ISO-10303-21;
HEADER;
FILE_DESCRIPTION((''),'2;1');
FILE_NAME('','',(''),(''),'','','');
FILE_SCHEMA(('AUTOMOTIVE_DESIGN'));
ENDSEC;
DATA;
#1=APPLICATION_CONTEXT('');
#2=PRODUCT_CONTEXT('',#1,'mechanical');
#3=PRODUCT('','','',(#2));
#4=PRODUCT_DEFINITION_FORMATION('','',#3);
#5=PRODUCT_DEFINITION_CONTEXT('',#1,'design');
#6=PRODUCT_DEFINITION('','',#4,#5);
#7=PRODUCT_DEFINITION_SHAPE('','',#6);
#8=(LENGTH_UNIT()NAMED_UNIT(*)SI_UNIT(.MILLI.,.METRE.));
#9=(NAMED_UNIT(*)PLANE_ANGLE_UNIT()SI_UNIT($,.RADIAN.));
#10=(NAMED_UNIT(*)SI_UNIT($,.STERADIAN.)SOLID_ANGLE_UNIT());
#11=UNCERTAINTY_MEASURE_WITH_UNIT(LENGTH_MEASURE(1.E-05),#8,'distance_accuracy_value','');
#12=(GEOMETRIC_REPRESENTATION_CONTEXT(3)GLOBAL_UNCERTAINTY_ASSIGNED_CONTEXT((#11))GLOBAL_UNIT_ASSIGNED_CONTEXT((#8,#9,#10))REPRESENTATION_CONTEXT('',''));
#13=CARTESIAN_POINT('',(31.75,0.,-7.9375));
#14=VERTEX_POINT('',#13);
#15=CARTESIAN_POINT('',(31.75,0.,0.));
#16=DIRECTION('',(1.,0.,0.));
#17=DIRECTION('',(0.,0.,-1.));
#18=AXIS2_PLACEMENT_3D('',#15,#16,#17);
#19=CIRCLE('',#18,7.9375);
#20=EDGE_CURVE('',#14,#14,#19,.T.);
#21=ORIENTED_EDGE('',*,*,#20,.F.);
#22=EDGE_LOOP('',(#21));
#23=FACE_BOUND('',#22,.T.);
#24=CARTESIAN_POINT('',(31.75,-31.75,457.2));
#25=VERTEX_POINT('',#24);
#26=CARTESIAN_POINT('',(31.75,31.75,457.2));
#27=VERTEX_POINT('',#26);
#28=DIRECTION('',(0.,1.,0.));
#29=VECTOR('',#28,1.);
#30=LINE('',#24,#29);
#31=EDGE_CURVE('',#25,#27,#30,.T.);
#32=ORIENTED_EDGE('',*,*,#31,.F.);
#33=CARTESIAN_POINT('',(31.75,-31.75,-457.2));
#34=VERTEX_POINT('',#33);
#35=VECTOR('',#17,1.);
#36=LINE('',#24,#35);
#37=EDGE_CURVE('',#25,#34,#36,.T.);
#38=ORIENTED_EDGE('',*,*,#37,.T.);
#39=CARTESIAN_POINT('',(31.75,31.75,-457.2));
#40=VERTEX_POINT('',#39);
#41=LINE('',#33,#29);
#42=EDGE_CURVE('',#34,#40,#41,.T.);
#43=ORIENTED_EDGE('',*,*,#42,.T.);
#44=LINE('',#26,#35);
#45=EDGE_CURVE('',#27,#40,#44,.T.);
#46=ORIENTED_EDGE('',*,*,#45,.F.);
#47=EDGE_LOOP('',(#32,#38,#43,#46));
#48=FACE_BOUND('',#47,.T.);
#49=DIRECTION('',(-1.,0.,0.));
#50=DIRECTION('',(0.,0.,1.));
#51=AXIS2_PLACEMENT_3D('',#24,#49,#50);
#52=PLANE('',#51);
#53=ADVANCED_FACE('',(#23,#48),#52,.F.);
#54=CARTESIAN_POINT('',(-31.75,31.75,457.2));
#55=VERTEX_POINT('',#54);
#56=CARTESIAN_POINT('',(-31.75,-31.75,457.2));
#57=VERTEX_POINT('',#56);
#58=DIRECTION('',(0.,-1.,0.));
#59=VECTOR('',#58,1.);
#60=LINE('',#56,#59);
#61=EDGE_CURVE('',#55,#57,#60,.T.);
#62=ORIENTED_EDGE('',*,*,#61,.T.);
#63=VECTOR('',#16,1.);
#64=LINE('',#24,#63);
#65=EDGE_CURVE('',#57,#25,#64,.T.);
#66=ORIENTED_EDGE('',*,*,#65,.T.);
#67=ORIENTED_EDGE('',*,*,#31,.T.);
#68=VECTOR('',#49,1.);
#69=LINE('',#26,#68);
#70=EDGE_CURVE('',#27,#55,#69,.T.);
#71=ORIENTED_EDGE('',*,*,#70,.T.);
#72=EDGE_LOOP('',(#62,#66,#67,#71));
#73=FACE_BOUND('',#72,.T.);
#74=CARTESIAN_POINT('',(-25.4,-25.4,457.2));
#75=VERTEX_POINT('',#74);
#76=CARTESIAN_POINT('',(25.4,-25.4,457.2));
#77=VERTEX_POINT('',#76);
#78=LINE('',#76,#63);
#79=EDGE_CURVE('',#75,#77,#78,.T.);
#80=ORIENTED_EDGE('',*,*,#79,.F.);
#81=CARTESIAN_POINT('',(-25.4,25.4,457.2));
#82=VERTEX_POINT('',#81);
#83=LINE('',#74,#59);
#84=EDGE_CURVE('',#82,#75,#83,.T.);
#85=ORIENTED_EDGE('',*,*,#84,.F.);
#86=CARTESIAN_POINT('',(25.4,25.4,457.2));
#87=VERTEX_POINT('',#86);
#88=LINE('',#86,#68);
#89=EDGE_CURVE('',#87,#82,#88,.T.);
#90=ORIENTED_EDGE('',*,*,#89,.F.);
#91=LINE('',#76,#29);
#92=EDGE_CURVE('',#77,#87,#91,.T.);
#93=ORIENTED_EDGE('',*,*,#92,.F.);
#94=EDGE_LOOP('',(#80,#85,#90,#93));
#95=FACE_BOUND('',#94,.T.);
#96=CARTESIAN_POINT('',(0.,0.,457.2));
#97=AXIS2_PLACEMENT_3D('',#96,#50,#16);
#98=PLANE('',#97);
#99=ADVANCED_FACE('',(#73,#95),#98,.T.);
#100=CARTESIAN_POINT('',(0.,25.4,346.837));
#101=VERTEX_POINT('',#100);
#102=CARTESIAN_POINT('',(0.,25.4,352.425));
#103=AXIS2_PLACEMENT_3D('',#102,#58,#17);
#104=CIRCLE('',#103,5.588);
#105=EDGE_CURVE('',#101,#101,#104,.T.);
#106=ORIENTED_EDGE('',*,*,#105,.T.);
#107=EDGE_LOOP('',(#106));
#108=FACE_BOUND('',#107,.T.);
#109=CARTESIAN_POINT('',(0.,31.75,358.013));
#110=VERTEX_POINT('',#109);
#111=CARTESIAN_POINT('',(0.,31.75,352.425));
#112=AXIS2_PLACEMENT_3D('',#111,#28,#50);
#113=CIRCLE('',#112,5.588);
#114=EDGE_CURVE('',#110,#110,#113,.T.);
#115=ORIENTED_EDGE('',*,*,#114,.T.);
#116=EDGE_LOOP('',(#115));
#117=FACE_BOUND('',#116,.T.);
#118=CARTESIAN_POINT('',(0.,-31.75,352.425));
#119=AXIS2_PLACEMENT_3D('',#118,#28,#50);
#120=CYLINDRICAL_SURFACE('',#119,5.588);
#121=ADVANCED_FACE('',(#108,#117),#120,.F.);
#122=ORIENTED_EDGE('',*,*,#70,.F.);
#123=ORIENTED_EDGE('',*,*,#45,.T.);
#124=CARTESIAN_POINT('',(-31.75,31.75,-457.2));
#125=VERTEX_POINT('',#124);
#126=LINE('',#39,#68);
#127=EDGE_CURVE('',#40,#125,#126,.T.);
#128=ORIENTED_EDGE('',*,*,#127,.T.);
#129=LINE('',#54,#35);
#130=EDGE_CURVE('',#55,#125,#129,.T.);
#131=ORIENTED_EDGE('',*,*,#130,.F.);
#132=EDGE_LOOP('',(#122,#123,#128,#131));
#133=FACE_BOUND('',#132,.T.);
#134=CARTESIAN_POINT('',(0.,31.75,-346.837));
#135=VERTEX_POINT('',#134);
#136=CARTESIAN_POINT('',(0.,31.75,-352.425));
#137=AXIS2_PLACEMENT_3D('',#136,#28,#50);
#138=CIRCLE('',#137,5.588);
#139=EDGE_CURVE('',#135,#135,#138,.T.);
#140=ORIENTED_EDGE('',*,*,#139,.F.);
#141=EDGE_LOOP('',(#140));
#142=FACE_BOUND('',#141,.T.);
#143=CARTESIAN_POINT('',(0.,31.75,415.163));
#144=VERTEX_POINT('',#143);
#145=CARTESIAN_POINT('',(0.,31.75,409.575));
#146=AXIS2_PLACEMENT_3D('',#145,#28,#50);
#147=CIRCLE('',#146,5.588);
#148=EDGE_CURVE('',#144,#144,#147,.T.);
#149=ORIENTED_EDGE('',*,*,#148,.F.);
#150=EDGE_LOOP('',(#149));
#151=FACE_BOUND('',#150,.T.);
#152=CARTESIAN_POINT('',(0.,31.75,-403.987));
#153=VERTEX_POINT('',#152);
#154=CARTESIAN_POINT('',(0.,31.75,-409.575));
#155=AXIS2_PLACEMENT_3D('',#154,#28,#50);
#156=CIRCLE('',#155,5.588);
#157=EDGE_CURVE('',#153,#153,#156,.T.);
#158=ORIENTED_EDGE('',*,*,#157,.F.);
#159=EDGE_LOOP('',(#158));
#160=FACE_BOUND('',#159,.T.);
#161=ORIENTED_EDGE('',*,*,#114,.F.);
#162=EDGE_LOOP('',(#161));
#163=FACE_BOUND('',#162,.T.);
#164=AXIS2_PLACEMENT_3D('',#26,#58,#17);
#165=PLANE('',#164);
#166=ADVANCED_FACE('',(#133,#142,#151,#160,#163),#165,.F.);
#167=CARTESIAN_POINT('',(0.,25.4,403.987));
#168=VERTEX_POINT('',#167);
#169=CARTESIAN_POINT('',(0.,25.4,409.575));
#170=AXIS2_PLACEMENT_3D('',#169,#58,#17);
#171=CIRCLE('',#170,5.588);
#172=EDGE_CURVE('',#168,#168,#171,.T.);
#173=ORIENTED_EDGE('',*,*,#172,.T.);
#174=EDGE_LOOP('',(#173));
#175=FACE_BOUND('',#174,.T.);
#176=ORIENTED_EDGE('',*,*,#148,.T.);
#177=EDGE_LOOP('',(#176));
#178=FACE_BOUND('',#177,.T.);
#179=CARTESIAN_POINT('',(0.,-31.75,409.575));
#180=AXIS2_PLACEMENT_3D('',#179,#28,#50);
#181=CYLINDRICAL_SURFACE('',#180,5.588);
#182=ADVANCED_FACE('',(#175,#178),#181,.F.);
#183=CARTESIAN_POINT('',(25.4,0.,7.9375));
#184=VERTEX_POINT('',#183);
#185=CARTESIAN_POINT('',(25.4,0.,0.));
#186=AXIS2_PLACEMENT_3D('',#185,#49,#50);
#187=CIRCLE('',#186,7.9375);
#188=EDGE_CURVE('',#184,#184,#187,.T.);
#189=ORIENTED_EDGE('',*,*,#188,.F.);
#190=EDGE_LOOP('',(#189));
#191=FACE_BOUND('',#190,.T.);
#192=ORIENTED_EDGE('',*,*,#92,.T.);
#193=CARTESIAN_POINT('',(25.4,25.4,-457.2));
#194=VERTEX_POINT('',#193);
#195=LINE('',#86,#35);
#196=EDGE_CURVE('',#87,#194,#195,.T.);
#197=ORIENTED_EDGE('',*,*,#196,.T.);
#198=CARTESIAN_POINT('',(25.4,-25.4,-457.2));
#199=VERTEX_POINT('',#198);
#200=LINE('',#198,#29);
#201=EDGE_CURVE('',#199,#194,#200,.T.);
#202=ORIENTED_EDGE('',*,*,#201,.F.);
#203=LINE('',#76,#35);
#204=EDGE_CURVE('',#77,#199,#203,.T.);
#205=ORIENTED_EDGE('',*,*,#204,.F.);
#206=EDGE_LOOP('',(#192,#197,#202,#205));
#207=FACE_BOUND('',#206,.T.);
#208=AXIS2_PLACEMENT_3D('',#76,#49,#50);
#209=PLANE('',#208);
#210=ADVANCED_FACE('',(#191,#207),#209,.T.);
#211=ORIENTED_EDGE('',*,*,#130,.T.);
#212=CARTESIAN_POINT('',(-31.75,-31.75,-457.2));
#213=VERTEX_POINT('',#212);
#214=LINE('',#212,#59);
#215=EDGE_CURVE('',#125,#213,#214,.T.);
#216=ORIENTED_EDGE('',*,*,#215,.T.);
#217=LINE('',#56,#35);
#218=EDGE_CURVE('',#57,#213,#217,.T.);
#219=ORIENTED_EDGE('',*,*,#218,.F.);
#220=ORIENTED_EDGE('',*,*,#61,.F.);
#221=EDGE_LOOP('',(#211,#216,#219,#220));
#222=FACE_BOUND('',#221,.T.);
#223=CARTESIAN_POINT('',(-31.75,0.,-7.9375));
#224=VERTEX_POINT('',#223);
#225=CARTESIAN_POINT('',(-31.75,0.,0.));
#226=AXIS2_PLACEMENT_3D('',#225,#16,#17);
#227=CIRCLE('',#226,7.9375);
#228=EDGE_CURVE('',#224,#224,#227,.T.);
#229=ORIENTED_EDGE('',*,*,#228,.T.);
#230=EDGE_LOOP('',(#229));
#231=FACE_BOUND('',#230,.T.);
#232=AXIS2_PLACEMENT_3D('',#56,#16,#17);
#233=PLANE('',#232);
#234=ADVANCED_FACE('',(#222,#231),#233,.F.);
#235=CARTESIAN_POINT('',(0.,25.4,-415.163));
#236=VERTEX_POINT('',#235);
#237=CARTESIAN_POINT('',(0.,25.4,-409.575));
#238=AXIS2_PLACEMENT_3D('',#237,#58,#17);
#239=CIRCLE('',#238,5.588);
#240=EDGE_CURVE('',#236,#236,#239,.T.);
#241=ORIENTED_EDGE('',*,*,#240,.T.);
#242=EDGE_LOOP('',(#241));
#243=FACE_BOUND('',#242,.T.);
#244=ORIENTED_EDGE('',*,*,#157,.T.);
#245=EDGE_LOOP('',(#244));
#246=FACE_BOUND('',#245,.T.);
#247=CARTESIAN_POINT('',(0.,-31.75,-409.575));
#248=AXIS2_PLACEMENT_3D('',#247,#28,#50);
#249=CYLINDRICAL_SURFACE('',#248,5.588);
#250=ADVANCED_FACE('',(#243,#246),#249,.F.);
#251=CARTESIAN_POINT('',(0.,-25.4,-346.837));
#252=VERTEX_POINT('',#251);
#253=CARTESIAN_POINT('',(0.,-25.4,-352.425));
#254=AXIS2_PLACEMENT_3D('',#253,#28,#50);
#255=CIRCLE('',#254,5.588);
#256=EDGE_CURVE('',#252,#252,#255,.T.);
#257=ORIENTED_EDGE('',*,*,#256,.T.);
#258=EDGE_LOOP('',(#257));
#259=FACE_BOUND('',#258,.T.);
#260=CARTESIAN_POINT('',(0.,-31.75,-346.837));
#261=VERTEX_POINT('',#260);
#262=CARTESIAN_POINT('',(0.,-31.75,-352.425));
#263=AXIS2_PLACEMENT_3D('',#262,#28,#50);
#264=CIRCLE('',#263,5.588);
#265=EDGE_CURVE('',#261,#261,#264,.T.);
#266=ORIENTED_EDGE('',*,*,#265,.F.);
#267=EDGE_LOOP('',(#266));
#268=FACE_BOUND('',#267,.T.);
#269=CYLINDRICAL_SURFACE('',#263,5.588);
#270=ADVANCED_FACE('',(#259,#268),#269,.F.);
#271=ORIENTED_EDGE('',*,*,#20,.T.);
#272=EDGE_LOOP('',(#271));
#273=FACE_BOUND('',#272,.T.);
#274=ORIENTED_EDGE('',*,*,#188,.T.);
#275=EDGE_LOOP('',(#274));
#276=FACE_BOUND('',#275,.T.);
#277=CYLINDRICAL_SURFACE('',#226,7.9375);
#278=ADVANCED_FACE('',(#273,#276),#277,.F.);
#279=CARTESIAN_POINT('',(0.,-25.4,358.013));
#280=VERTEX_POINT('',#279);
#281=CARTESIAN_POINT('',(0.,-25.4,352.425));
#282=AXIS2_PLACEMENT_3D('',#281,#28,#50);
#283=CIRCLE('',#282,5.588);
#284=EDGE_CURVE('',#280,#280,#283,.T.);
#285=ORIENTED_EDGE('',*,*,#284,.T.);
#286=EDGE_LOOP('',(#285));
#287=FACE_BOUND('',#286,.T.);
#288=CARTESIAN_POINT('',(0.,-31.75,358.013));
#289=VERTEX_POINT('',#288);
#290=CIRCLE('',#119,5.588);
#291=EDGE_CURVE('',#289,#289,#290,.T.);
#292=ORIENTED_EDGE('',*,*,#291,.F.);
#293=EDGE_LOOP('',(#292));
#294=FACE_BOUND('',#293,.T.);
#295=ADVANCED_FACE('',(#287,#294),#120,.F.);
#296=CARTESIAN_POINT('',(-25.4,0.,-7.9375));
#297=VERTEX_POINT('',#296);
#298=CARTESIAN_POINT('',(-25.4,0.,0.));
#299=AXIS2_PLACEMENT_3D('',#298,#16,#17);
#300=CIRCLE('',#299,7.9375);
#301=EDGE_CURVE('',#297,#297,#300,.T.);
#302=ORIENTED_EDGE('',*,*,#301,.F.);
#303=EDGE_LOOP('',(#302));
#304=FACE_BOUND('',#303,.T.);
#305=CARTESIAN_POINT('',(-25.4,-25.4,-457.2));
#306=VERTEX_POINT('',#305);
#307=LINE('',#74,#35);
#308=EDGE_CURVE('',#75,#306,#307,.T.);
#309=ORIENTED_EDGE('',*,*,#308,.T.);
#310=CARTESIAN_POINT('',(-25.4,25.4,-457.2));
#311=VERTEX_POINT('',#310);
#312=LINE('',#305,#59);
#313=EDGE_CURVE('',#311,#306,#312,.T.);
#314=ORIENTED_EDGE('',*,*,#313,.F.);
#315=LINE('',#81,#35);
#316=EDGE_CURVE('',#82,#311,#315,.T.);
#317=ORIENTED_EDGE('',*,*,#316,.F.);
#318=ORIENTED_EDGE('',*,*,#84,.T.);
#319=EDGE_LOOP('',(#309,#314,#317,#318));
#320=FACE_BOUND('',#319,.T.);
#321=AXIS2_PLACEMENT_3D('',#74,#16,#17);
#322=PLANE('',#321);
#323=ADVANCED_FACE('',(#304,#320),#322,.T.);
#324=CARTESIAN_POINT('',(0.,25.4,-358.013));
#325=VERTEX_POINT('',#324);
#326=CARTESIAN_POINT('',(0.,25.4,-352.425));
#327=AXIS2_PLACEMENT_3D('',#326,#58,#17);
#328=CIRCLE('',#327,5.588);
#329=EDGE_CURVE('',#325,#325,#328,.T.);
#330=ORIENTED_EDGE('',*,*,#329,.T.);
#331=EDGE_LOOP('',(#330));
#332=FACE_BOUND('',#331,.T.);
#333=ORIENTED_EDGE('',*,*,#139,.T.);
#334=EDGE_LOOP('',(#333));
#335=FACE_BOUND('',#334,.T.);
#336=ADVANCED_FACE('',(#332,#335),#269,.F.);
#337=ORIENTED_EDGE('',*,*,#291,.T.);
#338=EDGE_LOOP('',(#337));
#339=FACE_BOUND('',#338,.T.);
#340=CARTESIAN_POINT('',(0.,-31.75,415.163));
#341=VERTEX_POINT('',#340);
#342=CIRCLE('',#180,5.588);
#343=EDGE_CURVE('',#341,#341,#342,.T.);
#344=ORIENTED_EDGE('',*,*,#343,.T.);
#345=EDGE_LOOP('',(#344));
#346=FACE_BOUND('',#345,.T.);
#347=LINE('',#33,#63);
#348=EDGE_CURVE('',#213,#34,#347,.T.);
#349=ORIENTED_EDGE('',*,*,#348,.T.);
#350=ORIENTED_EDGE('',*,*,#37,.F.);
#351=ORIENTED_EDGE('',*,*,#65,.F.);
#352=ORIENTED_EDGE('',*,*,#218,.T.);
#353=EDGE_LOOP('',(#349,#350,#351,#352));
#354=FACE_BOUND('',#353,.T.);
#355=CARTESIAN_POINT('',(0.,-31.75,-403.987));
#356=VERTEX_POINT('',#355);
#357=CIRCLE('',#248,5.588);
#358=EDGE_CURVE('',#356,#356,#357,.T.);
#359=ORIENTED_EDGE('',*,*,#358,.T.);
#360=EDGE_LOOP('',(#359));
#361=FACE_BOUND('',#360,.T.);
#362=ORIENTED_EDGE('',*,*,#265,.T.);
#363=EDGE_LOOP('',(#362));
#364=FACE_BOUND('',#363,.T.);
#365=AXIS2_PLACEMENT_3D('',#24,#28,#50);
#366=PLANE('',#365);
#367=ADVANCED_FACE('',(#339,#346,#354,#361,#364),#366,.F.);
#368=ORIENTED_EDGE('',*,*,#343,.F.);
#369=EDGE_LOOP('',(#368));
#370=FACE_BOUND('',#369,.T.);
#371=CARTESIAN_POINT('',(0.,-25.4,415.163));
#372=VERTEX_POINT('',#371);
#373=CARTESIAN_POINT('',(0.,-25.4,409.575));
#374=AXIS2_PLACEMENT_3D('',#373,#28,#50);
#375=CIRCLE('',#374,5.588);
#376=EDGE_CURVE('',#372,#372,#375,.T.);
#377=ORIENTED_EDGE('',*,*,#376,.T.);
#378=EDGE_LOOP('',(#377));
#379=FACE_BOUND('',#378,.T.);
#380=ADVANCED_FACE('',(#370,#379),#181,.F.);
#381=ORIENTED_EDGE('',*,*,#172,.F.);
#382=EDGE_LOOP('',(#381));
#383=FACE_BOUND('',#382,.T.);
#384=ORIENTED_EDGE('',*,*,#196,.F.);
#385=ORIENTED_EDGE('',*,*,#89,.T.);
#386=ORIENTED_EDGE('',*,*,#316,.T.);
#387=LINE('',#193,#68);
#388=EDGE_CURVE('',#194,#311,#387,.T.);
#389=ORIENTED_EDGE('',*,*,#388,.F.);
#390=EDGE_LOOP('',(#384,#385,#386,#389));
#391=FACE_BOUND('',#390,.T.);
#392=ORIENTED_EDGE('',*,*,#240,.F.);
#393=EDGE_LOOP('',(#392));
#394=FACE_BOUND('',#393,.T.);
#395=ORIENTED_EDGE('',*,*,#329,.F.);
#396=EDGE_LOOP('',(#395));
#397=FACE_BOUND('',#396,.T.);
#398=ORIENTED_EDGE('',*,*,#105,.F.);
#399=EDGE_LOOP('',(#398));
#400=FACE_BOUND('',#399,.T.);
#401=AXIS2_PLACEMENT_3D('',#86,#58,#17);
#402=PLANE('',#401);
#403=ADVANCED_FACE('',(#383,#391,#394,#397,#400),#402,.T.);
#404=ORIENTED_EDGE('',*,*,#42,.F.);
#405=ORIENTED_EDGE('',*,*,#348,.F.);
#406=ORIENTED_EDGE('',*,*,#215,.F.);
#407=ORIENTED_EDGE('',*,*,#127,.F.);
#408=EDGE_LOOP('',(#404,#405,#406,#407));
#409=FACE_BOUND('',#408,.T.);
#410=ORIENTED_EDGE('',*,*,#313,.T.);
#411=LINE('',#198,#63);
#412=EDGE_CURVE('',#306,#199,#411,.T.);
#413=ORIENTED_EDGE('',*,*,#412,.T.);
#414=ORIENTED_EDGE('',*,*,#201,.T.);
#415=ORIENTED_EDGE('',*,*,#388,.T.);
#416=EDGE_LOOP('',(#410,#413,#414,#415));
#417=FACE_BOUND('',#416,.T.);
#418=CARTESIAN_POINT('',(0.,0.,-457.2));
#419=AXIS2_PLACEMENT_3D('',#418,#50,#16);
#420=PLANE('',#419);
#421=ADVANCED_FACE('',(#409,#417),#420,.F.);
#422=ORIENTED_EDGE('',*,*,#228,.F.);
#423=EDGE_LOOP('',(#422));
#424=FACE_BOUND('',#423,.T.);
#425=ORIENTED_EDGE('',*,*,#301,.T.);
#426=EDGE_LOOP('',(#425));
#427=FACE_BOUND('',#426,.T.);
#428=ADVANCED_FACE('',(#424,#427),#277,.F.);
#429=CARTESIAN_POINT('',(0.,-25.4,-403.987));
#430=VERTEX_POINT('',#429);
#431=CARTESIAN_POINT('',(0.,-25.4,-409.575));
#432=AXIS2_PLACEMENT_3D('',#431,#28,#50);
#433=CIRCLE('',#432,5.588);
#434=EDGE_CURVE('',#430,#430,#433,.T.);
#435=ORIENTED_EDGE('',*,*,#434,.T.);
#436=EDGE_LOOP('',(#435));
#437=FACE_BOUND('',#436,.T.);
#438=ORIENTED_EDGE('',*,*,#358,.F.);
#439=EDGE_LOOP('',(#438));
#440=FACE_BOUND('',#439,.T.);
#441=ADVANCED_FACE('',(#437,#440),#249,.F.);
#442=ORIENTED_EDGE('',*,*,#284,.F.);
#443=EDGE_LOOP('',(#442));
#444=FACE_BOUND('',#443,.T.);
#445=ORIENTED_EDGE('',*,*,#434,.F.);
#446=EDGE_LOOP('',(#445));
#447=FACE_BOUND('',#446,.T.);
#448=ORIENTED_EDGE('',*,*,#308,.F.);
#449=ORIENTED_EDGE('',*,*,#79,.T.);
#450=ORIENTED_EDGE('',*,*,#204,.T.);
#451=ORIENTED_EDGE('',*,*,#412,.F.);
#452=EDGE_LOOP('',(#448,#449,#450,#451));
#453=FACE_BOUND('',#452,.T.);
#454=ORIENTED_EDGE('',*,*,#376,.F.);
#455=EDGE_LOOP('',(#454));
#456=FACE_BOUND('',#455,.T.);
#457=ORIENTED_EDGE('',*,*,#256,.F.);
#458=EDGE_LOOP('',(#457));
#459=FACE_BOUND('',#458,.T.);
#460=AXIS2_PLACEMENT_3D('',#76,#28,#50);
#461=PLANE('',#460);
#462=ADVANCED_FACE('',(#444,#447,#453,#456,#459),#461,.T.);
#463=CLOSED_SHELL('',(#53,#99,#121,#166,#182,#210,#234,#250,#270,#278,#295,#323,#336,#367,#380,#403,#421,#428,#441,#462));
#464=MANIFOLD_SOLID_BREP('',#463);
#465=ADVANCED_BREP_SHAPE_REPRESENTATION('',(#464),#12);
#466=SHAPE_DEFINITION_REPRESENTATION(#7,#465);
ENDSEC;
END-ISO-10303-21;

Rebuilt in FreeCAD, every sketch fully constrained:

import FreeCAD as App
import Part
import Sketcher

V = App.Vector
Q = App.Units.Quantity

doc = App.newDocument("Part")
body = doc.addObject("PartDesign::Body", "Body")

# Sketch on XY plane
sketch1 = body.newObject("Sketcher::SketchObject", "Sketch")
sketch1.AttachmentSupport = (doc.getObject("XY_Plane"), [""])
sketch1.MapMode = "FlatFace"
sketch1.addGeometry([
    Part.LineSegment(V(-32, 32, 0), V(-32, -32, 0)),  # 0
    Part.LineSegment(V(-32, -32, 0), V(32, -32, 0)),  # 1
    Part.LineSegment(V(32, -32, 0), V(32, 32, 0)),  # 2
    Part.LineSegment(V(32, 32, 0), V(-32, 32, 0)),  # 3
    Part.LineSegment(V(25, -25, 0), V(-25, -25, 0)),  # 4
    Part.LineSegment(V(-25, -25, 0), V(-25, 25, 0)),  # 5
    Part.LineSegment(V(-25, 25, 0), V(25, 25, 0)),  # 6
    Part.LineSegment(V(25, 25, 0), V(25, -25, 0)),  # 7
], False)
sketch1.addConstraint([
    Sketcher.Constraint("Coincident", 0, 2, 1, 1),
    Sketcher.Constraint("Coincident", 1, 2, 2, 1),
    Sketcher.Constraint("Coincident", 2, 2, 3, 1),
    Sketcher.Constraint("Coincident", 3, 2, 0, 1),
    Sketcher.Constraint("Coincident", 4, 2, 5, 1),
    Sketcher.Constraint("Coincident", 5, 2, 6, 1),
    Sketcher.Constraint("Coincident", 6, 2, 7, 1),
    Sketcher.Constraint("Coincident", 7, 2, 4, 1),
    Sketcher.Constraint("Vertical", 0),
    Sketcher.Constraint("Horizontal", 1),
    Sketcher.Constraint("Vertical", 2),
    Sketcher.Constraint("Horizontal", 3),
    Sketcher.Constraint("Horizontal", 4),
    Sketcher.Constraint("Vertical", 5),
    Sketcher.Constraint("Horizontal", 6),
    Sketcher.Constraint("Vertical", 7),
    Sketcher.Constraint("Symmetric", 0, 2, 2, 2, -1, 1),
    Sketcher.Constraint("Symmetric", 4, 2, 6, 2, -1, 1),
    Sketcher.Constraint("Equal", 3, 0),
    Sketcher.Constraint("Equal", 6, 5),
    Sketcher.Constraint("DistanceX", 4, 2, 4, 1, Q("2 in")),
    Sketcher.Constraint("DistanceX", 1, 1, 1, 2, Q("2.5 in")),
])
pad1 = body.newObject("PartDesign::Pad", "Pad")
pad1.Profile = sketch1
pad1.Type = "TwoLengths"
pad1.Length = Q("18 in")
pad1.Length2 = Q("18 in")

# Sketch on XZ plane
sketch2 = body.newObject("Sketcher::SketchObject", "Sketch001")
sketch2.AttachmentSupport = (doc.getObject("XZ_Plane"), [""])
sketch2.MapMode = "FlatFace"
sketch2.AttachmentOffset = App.Placement(V(0, 0, -1.25 * 25.4), App.Rotation())
sketch2.addGeometry([
    Part.Circle(V(0, -410, 0), V(0, 0, 1), 6),
    Part.Circle(V(0, 410, 0), V(0, 0, 1), 6),
    Part.Circle(V(0, 352, 0), V(0, 0, 1), 6),
    Part.Circle(V(0, -352, 0), V(0, 0, 1), 6),
], False)
sketch2.addConstraint([
    Sketcher.Constraint("Equal", 0, 1),
    Sketcher.Constraint("Equal", 1, 2),
    Sketcher.Constraint("Equal", 2, 3),
    Sketcher.Constraint("Symmetric", 0, 3, 1, 3, -1, 1),
    Sketcher.Constraint("Symmetric", 2, 3, 3, 3, -1, 1),
    Sketcher.Constraint("PointOnObject", 0, 3, -2),
    Sketcher.Constraint("PointOnObject", 2, 3, -2),
    Sketcher.Constraint("Diameter", 0, Q("0.44 in")),
    Sketcher.Constraint("DistanceY", 0, 3, 2, 3, Q("30 in")),
    Sketcher.Constraint("DistanceY", 0, 3, 1, 3, Q("32.25 in")),
])
pocket1 = body.newObject("PartDesign::Pocket", "Pocket")
pocket1.Profile = sketch2
pocket1.Type = "ThroughAll"
pocket1.Reversed = True

# Sketch on YZ plane
sketch3 = body.newObject("Sketcher::SketchObject", "Sketch002")
sketch3.AttachmentSupport = (doc.getObject("YZ_Plane"), [""])
sketch3.MapMode = "FlatFace"
sketch3.AttachmentOffset = App.Placement(V(0, 0, 1.25 * 25.4), App.Rotation())
sketch3.addGeometry(Part.Circle(V(0, 0, 0), V(0, 0, 1), 8), False)
sketch3.addConstraint([
    Sketcher.Constraint("Coincident", 0, 3, -1, 1),
    Sketcher.Constraint("Diameter", 0, Q("0.625 in")),
])
pocket2 = body.newObject("PartDesign::Pocket", "Pocket001")
pocket2.Profile = sketch3
pocket2.Type = "ThroughAll"

doc.recompute()
